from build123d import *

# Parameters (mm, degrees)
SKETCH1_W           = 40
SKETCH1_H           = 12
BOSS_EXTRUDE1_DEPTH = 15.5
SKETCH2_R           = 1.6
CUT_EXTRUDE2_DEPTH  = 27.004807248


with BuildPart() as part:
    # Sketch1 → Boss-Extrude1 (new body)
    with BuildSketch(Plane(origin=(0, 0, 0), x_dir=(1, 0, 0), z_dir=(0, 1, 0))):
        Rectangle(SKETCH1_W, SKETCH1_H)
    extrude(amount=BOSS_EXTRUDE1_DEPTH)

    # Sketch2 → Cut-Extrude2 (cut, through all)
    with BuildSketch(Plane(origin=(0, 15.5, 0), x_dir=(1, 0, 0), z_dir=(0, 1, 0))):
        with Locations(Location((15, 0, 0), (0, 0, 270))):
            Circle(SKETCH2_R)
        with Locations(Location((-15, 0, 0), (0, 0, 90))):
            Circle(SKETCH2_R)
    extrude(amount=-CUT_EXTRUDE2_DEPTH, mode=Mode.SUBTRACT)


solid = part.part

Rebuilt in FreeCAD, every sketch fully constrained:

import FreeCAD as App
import Part
import Sketcher
Q = App.Units.Quantity

doc = App.newDocument("Part")
body = doc.addObject("PartDesign::Body", "Body")

# Sketch on XZ plane
sketch1 = body.newObject("Sketcher::SketchObject", "Sketch")
sketch1.AttachmentSupport = (doc.getObject("XZ_Plane"), [""])
sketch1.MapMode = "FlatFace"
sketch1.addGeometry([
    Part.LineSegment(App.Vector(-20, -6, 0), App.Vector(-20, 6, 0)),
    Part.LineSegment(App.Vector(-20, 6, 0), App.Vector(20, 6, 0)),
    Part.LineSegment(App.Vector(20, 6, 0), App.Vector(20, -6, 0)),
    Part.LineSegment(App.Vector(20, -6, 0), App.Vector(-20, -6, 0)),
], False)
sketch1.addConstraint([
    Sketcher.Constraint("Coincident", 0, 2, 1, 1),
    Sketcher.Constraint("Coincident", 1, 2, 2, 1),
    Sketcher.Constraint("Coincident", 2, 2, 3, 1),
    Sketcher.Constraint("Coincident", 3, 2, 0, 1),
    Sketcher.Constraint("Vertical", 0),
    Sketcher.Constraint("Horizontal", 1),
    Sketcher.Constraint("Vertical", 2),
    Sketcher.Constraint("Horizontal", 3),
    Sketcher.Constraint("Symmetric", 0, 2, 2, 2, -1, 1),
    Sketcher.Constraint("DistanceX", 1, 1, 1, 2, Q("40 mm")),
    Sketcher.Constraint("DistanceY", 0, 1, 0, 2, Q("12 mm")),
])
pad1 = body.newObject("PartDesign::Pad", "Pad")
pad1.Profile = sketch1
pad1.Length = 15.5
pad1.Reversed = True

# Sketch on XZ plane
sketch2 = body.newObject("Sketcher::SketchObject", "Sketch001")
sketch2.AttachmentSupport = (doc.getObject("XZ_Plane"), [""])
sketch2.MapMode = "FlatFace"
sketch2.AttachmentOffset = App.Placement(App.Vector(0, 0, -15.5), App.Rotation())
sketch2.addGeometry([
    Part.Circle(App.Vector(15, 0, 0), App.Vector(0, 0, 1), 1.6),
    Part.Circle(App.Vector(-15, 0, 0), App.Vector(0, 0, 1), 1.6),
], False)
sketch2.addConstraint([
    Sketcher.Constraint("Equal", 0, 1),
    Sketcher.Constraint("Symmetric", 0, 3, 1, 3, -1, 1),
    Sketcher.Constraint("PointOnObject", 0, 3, -1),
    Sketcher.Constraint("Diameter", 0, Q("3.2 mm")),
    Sketcher.Constraint("DistanceX", -1, 1, 0, 3, Q("15 mm")),
])
pocket1 = body.newObject("PartDesign::Pocket", "Pocket")
pocket1.Profile = sketch2
pocket1.Type = "ThroughAll"
pocket1.Reversed = True

doc.recompute()
